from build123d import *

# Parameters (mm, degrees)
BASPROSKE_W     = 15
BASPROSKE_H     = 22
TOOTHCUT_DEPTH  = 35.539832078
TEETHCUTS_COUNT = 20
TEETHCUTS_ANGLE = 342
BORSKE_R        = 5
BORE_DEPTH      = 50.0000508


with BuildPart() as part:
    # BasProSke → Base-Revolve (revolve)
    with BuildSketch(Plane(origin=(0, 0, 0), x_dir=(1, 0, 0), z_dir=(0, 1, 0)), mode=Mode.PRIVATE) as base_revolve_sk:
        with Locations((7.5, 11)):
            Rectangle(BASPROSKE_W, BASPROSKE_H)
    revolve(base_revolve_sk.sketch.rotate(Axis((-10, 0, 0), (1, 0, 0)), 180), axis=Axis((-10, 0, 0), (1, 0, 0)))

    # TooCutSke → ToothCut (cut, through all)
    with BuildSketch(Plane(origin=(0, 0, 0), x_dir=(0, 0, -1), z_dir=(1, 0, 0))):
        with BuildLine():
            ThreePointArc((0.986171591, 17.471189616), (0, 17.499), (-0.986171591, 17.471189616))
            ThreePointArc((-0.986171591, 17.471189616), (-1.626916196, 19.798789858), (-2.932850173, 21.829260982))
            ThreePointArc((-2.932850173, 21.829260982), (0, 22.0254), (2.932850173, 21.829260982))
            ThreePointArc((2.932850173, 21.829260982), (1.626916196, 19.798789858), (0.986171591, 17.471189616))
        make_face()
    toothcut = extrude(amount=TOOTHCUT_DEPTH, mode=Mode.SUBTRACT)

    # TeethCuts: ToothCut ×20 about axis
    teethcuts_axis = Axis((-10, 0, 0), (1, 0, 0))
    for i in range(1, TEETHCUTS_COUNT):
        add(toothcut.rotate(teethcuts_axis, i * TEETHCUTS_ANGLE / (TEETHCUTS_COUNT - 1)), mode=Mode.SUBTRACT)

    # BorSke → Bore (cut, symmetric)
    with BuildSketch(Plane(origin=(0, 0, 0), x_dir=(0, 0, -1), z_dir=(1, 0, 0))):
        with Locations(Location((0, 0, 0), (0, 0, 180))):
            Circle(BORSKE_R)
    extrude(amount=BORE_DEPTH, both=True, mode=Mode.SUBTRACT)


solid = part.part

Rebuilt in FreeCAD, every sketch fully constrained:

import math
import FreeCAD as App
import Part
import Sketcher
from FreeCAD import Vector


def add_polygon(sketch, points):
    """Adds a closed chain of lines whose ends are joined by coincident constraints."""
    first, n = sketch.GeometryCount, len(points)
    for a, b in zip(points, points[1:] + points[:1]):
        sketch.addGeometry(Part.LineSegment(App.Vector(*a, 0), App.Vector(*b, 0)), False)
    for i in range(n):
        sketch.addConstraint(Sketcher.Constraint("Coincident", first + i, 2, first + (i + 1) % n, 1))

doc = App.newDocument("Part")
params = doc.addObject("Spreadsheet::Sheet", "Params")
for row, (alias, value) in enumerate([
    ("sketch1_width", "15 mm"),
    ("sketch1_height", "22 mm"),
    ("revolution_angle", "360 deg"),
    ("sketch2_radius", "8 mm"),
    ("sketch3_diameter", "10 mm"),
    ("pocket2_length", "100.000102 mm"),
], start=1):
    params.set(f"A{row}", alias)
    params.set(f"B{row}", "=" + value)
    params.setAlias(f"B{row}", alias)

body = doc.addObject("PartDesign::Body", "Body")

# Sketch on XZ plane
sketch1 = body.newObject("Sketcher::SketchObject", "Sketch")
sketch1.AttachmentSupport = (doc.getObject("XZ_Plane"), [""])
sketch1.MapMode = "FlatFace"
add_polygon(sketch1, [(0, -22), (0, 0), (15, 0), (15, -22)])  # lines 0-3
sketch1.addConstraint([
    Sketcher.Constraint("Vertical", 0),
    Sketcher.Constraint("Horizontal", 1),
    Sketcher.Constraint("Vertical", 2),
    Sketcher.Constraint("Horizontal", 3),
    Sketcher.Constraint("Coincident", 0, 2, -1, 1),
    Sketcher.Constraint("DistanceX", 1, 1, 1, 2, 15.0),
    Sketcher.Constraint("DistanceY", 0, 1, 0, 2, 22.0),
])
sketch1.setExpression("Constraints[9]", "Params.sketch1_width")
sketch1.setExpression("Constraints[10]", "Params.sketch1_height")
revolution = body.newObject("PartDesign::Revolution", "Revolution")
revolution.Profile = sketch1
revolution.ReferenceAxis = (sketch1, ["H_Axis"])
revolution.setExpression("Angle", "Params.revolution_angle")

# Sketch on YZ plane
sketch2 = body.newObject("Sketcher::SketchObject", "Sketch001")
sketch2.AttachmentSupport = (doc.getObject("YZ_Plane"), [""])
sketch2.MapMode = "FlatFace"
sketch2.addGeometry([
    Part.ArcOfCircle(Part.Circle(Vector(0, 0, 0), Vector(0, 0, 1), 17.5), math.radians(-3.23), math.radians(3.23)),
    Part.ArcOfCircle(Part.Circle(Vector(16.5, -8.9, 0), Vector(0, 0, 1), 8), math.radians(49), math.radians(83)),
    Part.ArcOfCircle(Part.Circle(Vector(0, 0, 0), Vector(0, 0, 1), 22), math.radians(-7.65), math.radians(7.65)),
    Part.ArcOfCircle(Part.Circle(Vector(16.5, 8.9, 0), Vector(0, 0, 1), 8), math.radians(-83), math.radians(-49)),
], False)
sketch2.addConstraint([
    Sketcher.Constraint("Coincident", 0, 1, 1, 2),
    Sketcher.Constraint("Coincident", 1, 1, 2, 1),
    Sketcher.Constraint("Coincident", 2, 2, 3, 2),
    Sketcher.Constraint("Coincident", 3, 1, 0, 2),
    Sketcher.Constraint("Coincident", 0, 3, -1, 1),
    Sketcher.Constraint("Coincident", 2, 3, -1, 1),
    Sketcher.Constraint("Equal", 1, 3),
    Sketcher.Constraint("Symmetric", 1, 3, 3, 3, -1),
    Sketcher.Constraint("Radius", 1, 8.0),
    Sketcher.Constraint("Radius", 0, 17.499),
    Sketcher.Constraint("Radius", 2, 22.0254),
    Sketcher.Constraint("DistanceY", 1, 1, 2, 2, 5.8657),
    Sketcher.Constraint("DistanceX", -1, 1, 1, 3, 16.536031),
])
sketch2.setExpression("Constraints[8]", "Params.sketch2_radius")
pocket1 = body.newObject("PartDesign::Pocket", "Pocket")
pocket1.Profile = sketch2
pocket1.Type = "ThroughAll"
pocket1.Reversed = True
doc.recompute()

polarpattern = body.newObject("PartDesign::PolarPattern", "PolarPattern")
polarpattern.Originals = [pocket1]
polarpattern.Axis = (doc.getObject("X_Axis"), [""])
polarpattern.Angle = 360
polarpattern.Occurrences = 20
body.Tip = polarpattern

# Sketch on YZ plane
sketch3 = body.newObject("Sketcher::SketchObject", "Sketch002")
sketch3.AttachmentSupport = (doc.getObject("YZ_Plane"), [""])
sketch3.MapMode = "FlatFace"
sketch3.addGeometry(Part.Circle(Vector(0, 0, 0), Vector(0, 0, 1), 5), False)
sketch3.addConstraint([
    Sketcher.Constraint("Coincident", 0, 3, -1, 1),
    Sketcher.Constraint("Diameter", 0, 10.0),
])
sketch3.setExpression("Constraints[1]", "Params.sketch3_diameter")
pocket2 = body.newObject("PartDesign::Pocket", "Pocket001")
pocket2.Profile = sketch3
pocket2.setExpression("Length", "Params.pocket2_length")
pocket2.Midplane = True

doc.recompute()
